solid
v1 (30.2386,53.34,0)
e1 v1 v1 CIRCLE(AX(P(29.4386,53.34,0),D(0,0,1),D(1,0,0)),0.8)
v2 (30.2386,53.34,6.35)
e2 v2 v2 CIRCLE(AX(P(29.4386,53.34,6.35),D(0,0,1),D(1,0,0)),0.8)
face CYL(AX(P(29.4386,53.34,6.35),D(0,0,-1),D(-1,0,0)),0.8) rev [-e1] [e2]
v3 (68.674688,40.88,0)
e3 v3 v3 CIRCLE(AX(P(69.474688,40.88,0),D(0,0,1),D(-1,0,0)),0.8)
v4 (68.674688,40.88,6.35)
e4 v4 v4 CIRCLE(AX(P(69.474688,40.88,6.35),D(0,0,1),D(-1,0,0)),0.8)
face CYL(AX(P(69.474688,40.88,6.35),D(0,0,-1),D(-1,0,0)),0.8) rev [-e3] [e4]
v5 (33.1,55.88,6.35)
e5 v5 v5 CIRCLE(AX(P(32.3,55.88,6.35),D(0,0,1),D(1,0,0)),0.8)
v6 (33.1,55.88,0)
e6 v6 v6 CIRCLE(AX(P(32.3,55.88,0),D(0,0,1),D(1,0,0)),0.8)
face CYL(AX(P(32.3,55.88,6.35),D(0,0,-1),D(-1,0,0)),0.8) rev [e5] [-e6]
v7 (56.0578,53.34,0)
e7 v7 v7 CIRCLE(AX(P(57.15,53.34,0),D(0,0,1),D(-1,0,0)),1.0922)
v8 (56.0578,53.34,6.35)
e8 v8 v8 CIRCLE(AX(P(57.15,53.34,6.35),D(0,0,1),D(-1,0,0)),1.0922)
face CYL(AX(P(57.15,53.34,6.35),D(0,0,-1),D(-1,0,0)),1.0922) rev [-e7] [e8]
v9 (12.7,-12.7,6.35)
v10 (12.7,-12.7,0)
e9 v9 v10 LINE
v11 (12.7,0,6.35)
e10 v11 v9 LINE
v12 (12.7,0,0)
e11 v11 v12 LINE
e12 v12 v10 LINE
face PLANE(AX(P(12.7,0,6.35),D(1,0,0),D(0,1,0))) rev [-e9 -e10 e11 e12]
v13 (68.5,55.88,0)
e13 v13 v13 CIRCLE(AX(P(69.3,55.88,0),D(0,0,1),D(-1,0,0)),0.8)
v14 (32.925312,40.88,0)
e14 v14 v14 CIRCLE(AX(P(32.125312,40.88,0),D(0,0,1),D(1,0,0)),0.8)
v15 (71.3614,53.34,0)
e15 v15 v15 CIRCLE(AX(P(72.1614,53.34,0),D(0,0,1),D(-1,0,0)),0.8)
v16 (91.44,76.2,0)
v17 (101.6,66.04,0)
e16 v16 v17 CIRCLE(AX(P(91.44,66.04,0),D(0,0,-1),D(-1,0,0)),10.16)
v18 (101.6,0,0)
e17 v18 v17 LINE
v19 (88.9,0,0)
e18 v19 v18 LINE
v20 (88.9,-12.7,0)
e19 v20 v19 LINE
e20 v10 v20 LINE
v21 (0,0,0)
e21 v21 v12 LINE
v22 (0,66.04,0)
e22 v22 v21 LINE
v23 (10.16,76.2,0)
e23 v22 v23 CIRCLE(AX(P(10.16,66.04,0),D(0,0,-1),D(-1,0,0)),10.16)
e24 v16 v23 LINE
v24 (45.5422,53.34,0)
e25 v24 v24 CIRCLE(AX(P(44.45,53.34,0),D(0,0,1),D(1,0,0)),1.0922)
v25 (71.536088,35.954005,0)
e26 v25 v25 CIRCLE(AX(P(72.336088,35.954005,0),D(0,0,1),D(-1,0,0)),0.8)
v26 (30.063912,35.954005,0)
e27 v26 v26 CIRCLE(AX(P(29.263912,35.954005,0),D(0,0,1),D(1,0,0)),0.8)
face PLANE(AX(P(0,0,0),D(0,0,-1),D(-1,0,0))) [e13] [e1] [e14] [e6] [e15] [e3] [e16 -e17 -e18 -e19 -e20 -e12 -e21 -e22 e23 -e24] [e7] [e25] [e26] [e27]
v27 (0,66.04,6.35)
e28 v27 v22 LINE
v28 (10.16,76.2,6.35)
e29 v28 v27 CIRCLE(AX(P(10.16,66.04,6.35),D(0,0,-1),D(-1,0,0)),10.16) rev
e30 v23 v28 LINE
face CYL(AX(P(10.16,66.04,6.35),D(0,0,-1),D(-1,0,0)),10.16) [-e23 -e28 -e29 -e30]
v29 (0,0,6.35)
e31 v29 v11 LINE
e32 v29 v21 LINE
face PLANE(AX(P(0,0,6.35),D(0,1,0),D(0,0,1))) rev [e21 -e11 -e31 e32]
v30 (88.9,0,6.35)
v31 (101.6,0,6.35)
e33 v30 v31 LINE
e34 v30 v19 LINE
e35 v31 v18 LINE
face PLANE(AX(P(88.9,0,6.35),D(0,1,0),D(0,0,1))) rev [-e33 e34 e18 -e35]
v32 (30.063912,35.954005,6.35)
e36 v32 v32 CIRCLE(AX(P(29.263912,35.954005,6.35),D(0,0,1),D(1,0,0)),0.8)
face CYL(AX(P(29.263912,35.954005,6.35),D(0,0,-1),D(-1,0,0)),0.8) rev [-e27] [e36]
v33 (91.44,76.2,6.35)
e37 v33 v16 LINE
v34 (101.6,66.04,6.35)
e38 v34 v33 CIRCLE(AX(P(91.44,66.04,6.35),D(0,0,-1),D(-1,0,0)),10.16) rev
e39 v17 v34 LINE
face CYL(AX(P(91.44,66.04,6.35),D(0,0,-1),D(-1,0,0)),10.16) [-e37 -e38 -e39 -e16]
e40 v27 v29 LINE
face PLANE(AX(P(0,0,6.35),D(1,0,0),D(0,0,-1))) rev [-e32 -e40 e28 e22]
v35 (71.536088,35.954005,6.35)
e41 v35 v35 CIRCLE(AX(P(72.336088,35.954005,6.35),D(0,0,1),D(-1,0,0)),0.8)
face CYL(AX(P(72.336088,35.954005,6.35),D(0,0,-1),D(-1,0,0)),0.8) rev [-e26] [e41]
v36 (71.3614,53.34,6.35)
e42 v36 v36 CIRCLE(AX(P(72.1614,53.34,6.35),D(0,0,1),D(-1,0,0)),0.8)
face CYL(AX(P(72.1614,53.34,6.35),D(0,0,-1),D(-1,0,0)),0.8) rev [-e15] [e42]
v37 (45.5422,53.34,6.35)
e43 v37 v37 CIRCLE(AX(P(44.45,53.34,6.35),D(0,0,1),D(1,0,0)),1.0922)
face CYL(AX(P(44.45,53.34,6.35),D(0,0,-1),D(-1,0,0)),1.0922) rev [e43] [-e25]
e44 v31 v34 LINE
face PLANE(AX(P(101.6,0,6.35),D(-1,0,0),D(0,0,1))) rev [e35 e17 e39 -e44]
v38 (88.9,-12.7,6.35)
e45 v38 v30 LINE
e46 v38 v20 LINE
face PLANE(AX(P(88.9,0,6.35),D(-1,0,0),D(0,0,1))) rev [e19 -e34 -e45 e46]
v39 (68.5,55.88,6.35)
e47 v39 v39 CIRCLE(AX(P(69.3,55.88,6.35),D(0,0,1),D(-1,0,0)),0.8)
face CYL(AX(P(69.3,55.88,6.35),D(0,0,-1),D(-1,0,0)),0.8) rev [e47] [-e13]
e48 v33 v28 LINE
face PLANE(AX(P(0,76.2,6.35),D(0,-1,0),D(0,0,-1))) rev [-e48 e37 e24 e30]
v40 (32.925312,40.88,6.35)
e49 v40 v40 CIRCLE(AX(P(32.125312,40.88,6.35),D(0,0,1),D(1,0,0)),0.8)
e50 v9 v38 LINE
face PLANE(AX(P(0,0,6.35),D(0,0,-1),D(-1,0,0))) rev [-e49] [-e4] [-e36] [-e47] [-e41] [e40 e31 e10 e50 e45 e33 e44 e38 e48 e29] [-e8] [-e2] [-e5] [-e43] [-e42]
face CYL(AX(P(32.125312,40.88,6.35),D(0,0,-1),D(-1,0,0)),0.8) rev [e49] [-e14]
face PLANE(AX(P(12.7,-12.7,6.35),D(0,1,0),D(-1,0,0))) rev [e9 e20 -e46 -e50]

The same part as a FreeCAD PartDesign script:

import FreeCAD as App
import Part
import Sketcher

V = App.Vector
Q = App.Units.Quantity


def edges_at(feature, points):
    """Names of the edges that pass closest to the given points."""
    edges = feature.Shape.Edges
    near = lambda p: min(range(len(edges)), key=lambda i: edges[i].distToShape(Part.Vertex(*p))[0])
    return sorted({f"Edge{near(p) + 1}" for p in points})


def add_polygon(sketch, points):
    """Adds a closed chain of lines whose ends are joined by coincident constraints."""
    first, n = sketch.GeometryCount, len(points)
    for a, b in zip(points, points[1:] + points[:1]):
        sketch.addGeometry(Part.LineSegment(App.Vector(*a, 0), App.Vector(*b, 0)), False)
    for i in range(n):
        sketch.addConstraint(Sketcher.Constraint("Coincident", first + i, 2, first + (i + 1) % n, 1))

doc = App.newDocument("Part")
body = doc.addObject("PartDesign::Body", "Body")

# Sketch on XY plane
sketch1 = body.newObject("Sketcher::SketchObject", "Sketch")
sketch1.AttachmentSupport = (doc.getObject("XY_Plane"), [""])
sketch1.MapMode = "FlatFace"
add_polygon(sketch1, [(88.9, 0), (101.6, 0), (101.6, 76.2), (0, 76.2), (0, 0), (12.7, 0), (12.7, -12.7), (88.9, -12.7)])  # lines 0-7
sketch1.addGeometry(Part.Circle(V(29.3, 36, 0), V(0, 0, 1), 0.8), False)  # 8
sketch1.addGeometry(Part.Circle(V(32.1, 40.9, 0), V(0, 0, 1), 0.8), False)  # 9
sketch1.addGeometry(Part.Circle(V(72.3, 36, 0), V(0, 0, 1), 0.8), False)  # 10
sketch1.addGeometry(Part.Circle(V(69.5, 40.9, 0), V(0, 0, 1), 0.8), False)  # 11
sketch1.addGeometry(Part.Circle(V(29.4, 53.3, 0), V(0, 0, 1), 0.8), False)  # 12
sketch1.addGeometry(Part.Circle(V(32.3, 55.9, 0), V(0, 0, 1), 0.8), False)  # 13
sketch1.addGeometry(Part.Circle(V(44.5, 53.3, 0), V(0, 0, 1), 1.1), False)  # 14
sketch1.addGeometry(Part.Circle(V(57.1, 53.3, 0), V(0, 0, 1), 1.1), False)  # 15
sketch1.addGeometry(Part.Circle(V(72.2, 53.3, 0), V(0, 0, 1), 0.8), False)  # 16
sketch1.addGeometry(Part.Circle(V(69.3, 55.9, 0), V(0, 0, 1), 0.8), False)  # 17
sketch1.addConstraint([
    Sketcher.Constraint("Horizontal", 0),
    Sketcher.Constraint("Vertical", 1),
    Sketcher.Constraint("Horizontal", 2),
    Sketcher.Constraint("Vertical", 3),
    Sketcher.Constraint("Horizontal", 4),
    Sketcher.Constraint("Vertical", 5),
    Sketcher.Constraint("Horizontal", 6),
    Sketcher.Constraint("Vertical", 7),
    Sketcher.Constraint("Coincident", 3, 2, -1, 1),
    Sketcher.Constraint("Equal", 8, 9),
    Sketcher.Constraint("Equal", 9, 10),
    Sketcher.Constraint("Equal", 10, 11),
    Sketcher.Constraint("Equal", 11, 12),
    Sketcher.Constraint("Equal", 12, 13),
    Sketcher.Constraint("Equal", 14, 15),
    Sketcher.Constraint("Equal", 13, 16),
    Sketcher.Constraint("Equal", 16, 17),
    Sketcher.Constraint("PointOnObject", 0, 2, -1),
    Sketcher.Constraint("Horizontal", 8, 3, 10, 3),
    Sketcher.Constraint("Horizontal", 9, 3, 11, 3),
    Sketcher.Constraint("Horizontal", 12, 3, 14, 3),
    Sketcher.Constraint("Horizontal", 14, 3, 15, 3),
    Sketcher.Constraint("Horizontal", 15, 3, 16, 3),
    Sketcher.Constraint("Horizontal", 13, 3, 17, 3),
    Sketcher.Constraint("Equal", 0, 4),
    Sketcher.Constraint("Equal", 6, 1),
    Sketcher.Constraint("Equal", 4, 5),
    Sketcher.Constraint("DistanceX", 2, 2, 2, 1, Q("4 in")),
    Sketcher.Constraint("DistanceX", 6, 1, 6, 2, Q("3 in")),
    Sketcher.Constraint("Diameter", 14, Q("0.086 in")),
    Sketcher.Constraint("DistanceY", -1, 1, 12, 3, Q("2.1 in")),
    Sketcher.Constraint("DistanceY", -1, 1, 13, 3, Q("2.2 in")),
    Sketcher.Constraint("DistanceX", 14, 3, 15, 3, Q("0.5 in")),
    Sketcher.Constraint("Diameter", 8, 1.6),
    Sketcher.Constraint("DistanceX", -1, 1, 14, 3, Q("1.75 in")),
    Sketcher.Constraint("DistanceX", -1, 1, 12, 3, Q("1.159 in")),
    Sketcher.Constraint("DistanceX", -1, 1, 16, 3, Q("2.841 in")),
    Sketcher.Constraint("DistanceY", -1, 1, 9, 3, 40.88),
    Sketcher.Constraint("DistanceX", -1, 1, 13, 3, 32.3),
    Sketcher.Constraint("DistanceX", -1, 1, 17, 3, 69.3),
    Sketcher.Constraint("DistanceX", 8, 3, 9, 3, 2.8614),
    Sketcher.Constraint("DistanceX", 11, 3, 10, 3, 2.8614),
    Sketcher.Constraint("DistanceX", -1, 1, 8, 3, 29.263912),
    Sketcher.Constraint("DistanceX", -1, 1, 10, 3, 72.336088),
    Sketcher.Constraint("DistanceY", -1, 1, 8, 3, 35.954005),
])
pad1 = body.newObject("PartDesign::Pad", "Pad")
pad1.Profile = sketch1
pad1.Length = Q("0.25 in")
doc.recompute()

fillet = body.newObject("PartDesign::Fillet", "Fillet")
fillet.Base = (pad1, edges_at(pad1, [(0, 76.2, 3.175), (101.6, 76.2, 3.175)]))
fillet.Radius = Q("0.4 in")

doc.recompute()
